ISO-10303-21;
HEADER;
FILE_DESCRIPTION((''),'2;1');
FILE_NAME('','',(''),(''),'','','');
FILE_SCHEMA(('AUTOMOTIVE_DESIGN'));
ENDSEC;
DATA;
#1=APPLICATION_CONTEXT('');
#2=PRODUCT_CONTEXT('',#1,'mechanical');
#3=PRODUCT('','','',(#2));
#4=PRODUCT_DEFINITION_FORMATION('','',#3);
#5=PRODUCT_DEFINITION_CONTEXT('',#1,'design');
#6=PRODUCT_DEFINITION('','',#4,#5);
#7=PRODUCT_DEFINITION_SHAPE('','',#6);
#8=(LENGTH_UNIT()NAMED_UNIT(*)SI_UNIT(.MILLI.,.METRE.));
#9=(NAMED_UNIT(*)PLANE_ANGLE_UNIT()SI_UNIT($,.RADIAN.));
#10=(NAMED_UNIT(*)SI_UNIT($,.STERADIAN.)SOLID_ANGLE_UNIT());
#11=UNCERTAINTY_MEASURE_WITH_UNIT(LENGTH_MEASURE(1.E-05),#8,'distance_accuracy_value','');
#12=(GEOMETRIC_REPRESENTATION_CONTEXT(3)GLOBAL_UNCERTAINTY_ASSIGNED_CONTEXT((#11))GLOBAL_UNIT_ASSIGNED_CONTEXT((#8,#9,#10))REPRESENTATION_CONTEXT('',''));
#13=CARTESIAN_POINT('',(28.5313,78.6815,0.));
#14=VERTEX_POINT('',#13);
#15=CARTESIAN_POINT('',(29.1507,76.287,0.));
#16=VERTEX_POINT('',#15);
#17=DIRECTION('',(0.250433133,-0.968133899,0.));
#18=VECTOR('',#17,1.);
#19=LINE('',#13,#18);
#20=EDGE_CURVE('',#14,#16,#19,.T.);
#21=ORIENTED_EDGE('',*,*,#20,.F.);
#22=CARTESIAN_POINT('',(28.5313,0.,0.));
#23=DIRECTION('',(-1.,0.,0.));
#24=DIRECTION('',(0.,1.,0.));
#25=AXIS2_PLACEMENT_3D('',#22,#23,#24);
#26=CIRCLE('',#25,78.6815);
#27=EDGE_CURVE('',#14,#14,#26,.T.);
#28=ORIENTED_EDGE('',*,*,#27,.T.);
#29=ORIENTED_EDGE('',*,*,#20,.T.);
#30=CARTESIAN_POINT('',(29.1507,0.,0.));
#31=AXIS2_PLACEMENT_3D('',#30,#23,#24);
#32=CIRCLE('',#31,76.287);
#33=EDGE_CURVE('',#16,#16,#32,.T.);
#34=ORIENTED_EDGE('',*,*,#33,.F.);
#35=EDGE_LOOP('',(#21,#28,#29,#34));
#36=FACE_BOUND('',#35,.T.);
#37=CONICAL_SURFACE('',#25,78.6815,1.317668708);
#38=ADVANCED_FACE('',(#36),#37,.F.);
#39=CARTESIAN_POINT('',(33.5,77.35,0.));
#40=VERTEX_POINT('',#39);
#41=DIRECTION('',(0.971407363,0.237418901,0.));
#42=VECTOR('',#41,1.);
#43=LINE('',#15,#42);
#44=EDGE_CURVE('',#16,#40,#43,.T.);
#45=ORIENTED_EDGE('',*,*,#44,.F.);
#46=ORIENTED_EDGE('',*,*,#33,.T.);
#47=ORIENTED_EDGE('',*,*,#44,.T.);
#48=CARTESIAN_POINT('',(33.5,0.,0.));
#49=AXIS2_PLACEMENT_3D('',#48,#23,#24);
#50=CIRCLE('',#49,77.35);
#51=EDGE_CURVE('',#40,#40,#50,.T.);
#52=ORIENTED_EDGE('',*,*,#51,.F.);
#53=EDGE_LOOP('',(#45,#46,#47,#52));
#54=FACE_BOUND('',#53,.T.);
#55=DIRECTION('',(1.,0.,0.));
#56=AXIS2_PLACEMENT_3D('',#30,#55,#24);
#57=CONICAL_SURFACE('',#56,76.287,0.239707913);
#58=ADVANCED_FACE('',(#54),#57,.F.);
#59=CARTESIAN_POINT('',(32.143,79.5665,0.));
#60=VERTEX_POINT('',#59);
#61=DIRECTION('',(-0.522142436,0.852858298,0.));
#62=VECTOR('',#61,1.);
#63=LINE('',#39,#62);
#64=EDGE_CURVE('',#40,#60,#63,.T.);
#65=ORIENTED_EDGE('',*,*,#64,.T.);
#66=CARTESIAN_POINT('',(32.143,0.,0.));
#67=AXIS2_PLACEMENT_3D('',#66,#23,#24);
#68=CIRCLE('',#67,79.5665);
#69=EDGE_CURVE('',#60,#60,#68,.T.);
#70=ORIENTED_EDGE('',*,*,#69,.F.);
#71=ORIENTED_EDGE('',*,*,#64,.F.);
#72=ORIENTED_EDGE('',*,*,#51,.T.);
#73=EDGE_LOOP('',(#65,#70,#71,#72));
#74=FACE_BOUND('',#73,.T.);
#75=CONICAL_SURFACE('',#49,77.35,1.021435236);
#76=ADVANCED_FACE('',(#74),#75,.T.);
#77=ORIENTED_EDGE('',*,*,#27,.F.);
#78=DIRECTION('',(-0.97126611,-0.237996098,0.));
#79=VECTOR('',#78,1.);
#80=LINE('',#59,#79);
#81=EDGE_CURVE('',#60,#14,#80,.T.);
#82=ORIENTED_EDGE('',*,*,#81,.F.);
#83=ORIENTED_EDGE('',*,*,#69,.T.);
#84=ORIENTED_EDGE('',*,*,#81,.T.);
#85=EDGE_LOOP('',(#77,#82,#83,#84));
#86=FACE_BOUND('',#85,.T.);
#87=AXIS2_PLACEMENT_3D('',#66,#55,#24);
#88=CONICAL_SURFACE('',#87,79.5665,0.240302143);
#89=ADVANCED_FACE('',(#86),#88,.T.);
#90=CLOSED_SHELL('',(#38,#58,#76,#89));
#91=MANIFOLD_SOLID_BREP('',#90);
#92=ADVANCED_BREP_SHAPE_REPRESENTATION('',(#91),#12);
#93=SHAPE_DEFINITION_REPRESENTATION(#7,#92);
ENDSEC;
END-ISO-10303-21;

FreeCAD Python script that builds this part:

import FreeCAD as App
import Part
import Sketcher
Q = App.Units.Quantity


def add_polygon(sketch, points):
    """Adds a closed chain of lines whose ends are joined by coincident constraints."""
    first, n = sketch.GeometryCount, len(points)
    for a, b in zip(points, points[1:] + points[:1]):
        sketch.addGeometry(Part.LineSegment(App.Vector(*a, 0), App.Vector(*b, 0)), False)
    for i in range(n):
        sketch.addConstraint(Sketcher.Constraint("Coincident", first + i, 2, first + (i + 1) % n, 1))

doc = App.newDocument("Part")
body = doc.addObject("PartDesign::Body", "Body")

sketch1 = body.newObject("Sketcher::SketchObject", "Sketch")
sketch1.AttachmentSupport = (doc.getObject("XY_Plane"), [""])
sketch1.MapMode = "FlatFace"
add_polygon(sketch1, [(32.1, 79.6), (28.5, 78.7), (29.2, 76.3), (33.5, 77.3)])
sketch1.addConstraint([
    Sketcher.Constraint("DistanceX", -1, 1, 2, 2, Q("33.5 mm")),
    Sketcher.Constraint("DistanceY", -1, 1, 2, 2, Q("77.35 mm")),
    Sketcher.Constraint("Distance", 3, Q("2.599 mm")),
    Sketcher.Constraint("DistanceY", -1, 1, 1, 2, Q("76.287 mm")),
    Sketcher.Constraint("DistanceX", -1, 1, 3, 2, Q("32.143 mm")),
    Sketcher.Constraint("DistanceY", 0, 2, 3, 2, Q("0.885 mm")),
    Sketcher.Constraint("Distance", 0, Q("3.7185 mm")),
    Sketcher.Constraint("Distance", 1, Q("2.4733 mm")),
])
revolution = body.newObject("PartDesign::Revolution", "Revolution")
revolution.Profile = sketch1
revolution.ReferenceAxis = (sketch1, ["H_Axis"])
revolution.Angle = 360

doc.recompute()
